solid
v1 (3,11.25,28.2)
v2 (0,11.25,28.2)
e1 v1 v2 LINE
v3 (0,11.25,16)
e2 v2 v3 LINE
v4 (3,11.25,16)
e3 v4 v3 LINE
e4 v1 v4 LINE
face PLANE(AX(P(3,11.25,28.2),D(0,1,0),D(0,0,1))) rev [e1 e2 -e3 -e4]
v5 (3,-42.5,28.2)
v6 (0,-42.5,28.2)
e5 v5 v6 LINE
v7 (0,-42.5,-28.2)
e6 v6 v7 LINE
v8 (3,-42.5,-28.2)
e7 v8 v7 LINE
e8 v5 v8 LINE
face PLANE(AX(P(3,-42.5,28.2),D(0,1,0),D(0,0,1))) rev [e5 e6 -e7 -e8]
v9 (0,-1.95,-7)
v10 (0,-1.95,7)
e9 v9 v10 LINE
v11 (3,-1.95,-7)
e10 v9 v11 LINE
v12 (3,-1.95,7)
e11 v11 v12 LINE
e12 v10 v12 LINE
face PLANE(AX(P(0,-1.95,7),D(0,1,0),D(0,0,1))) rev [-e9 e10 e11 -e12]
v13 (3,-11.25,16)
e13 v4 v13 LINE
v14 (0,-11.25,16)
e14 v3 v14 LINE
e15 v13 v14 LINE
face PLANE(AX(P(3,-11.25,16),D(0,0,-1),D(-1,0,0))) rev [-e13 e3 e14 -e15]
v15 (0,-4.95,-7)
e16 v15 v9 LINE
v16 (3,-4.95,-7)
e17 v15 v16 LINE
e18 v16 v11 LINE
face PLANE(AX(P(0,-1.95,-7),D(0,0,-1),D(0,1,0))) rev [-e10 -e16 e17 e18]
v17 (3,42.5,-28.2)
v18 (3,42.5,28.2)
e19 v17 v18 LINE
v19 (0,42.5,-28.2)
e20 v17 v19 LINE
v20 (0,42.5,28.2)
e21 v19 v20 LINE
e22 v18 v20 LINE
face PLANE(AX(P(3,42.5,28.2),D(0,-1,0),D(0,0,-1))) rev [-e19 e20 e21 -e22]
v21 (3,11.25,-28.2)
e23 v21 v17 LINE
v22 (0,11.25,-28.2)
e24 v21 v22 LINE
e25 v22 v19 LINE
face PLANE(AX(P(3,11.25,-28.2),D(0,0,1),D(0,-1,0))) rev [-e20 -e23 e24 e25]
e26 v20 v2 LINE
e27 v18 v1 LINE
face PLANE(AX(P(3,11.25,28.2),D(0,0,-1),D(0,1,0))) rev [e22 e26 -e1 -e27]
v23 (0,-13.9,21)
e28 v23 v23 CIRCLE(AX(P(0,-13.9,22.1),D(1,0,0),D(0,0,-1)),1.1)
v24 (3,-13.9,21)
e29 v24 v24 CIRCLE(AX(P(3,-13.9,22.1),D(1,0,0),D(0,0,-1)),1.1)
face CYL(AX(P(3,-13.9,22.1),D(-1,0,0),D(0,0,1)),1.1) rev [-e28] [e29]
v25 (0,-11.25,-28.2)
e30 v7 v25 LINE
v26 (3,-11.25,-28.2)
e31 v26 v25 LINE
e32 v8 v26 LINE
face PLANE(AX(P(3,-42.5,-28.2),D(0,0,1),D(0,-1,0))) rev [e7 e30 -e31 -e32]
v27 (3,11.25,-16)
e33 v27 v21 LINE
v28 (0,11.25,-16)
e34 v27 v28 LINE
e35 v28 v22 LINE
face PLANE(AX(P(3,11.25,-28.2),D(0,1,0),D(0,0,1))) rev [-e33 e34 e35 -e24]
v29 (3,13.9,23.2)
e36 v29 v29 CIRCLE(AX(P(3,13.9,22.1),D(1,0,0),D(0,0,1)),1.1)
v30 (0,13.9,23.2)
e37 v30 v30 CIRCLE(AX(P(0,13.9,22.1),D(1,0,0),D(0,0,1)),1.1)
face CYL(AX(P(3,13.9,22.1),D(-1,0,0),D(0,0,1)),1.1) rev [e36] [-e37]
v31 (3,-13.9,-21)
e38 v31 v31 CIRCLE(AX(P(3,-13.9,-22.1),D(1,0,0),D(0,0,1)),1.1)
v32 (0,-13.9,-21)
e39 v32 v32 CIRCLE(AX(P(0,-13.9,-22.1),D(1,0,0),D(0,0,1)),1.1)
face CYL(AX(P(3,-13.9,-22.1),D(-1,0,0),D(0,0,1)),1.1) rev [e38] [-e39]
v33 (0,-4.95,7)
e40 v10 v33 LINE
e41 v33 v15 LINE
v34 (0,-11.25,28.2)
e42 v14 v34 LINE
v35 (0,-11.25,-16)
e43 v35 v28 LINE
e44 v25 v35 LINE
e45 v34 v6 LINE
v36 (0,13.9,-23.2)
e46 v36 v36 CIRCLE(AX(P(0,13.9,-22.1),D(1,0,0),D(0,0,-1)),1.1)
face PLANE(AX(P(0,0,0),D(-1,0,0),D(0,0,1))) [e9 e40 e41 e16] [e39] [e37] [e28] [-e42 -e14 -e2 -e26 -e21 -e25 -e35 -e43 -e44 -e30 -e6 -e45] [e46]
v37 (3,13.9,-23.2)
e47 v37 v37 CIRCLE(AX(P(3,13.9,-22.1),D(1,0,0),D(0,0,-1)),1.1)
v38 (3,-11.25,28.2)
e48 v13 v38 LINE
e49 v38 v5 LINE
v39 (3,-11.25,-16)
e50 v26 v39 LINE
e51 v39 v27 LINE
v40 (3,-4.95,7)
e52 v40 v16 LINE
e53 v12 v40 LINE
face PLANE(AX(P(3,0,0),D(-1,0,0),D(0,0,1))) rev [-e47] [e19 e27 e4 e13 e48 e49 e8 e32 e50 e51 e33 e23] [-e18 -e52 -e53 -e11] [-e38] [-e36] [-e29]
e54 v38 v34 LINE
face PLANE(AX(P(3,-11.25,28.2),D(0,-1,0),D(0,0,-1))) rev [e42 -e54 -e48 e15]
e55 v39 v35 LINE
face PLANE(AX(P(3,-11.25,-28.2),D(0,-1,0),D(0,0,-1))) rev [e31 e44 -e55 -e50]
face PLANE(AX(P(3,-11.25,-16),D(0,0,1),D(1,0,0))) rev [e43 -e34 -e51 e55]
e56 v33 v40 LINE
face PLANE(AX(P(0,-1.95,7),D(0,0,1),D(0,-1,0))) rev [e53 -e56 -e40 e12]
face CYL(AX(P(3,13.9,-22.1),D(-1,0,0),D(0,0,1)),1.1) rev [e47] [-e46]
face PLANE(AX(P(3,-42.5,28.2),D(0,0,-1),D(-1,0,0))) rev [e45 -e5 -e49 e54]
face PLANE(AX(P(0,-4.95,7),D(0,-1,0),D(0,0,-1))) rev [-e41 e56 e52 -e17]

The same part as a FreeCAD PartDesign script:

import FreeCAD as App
import Part
import Sketcher
from FreeCAD import Vector
Q = App.Units.Quantity

doc = App.newDocument("Part")
body = doc.addObject("PartDesign::Body", "Body")

# Sketch on YZ plane
sketch1 = doc.addObject("Sketcher::SketchObject", "Sketch")
body.addObject(sketch1)
sketch1.AttachmentSupport = (doc.YZ_Plane, [""])
sketch1.MapMode = "FlatFace"
sketch1.addGeometry(Part.LineSegment(Vector(-42.5, 28.2, 0), Vector(-42.5, -28.2, 0)), False)
sketch1.addGeometry(Part.LineSegment(Vector(-42.5, -28.2, 0), Vector(-11.2, -28.2, 0)), False)
sketch1.addGeometry(Part.LineSegment(Vector(-11.2, -28.2, 0), Vector(-11.2, -16, 0)), False)
sketch1.addGeometry(Part.LineSegment(Vector(-11.2, -16, 0), Vector(11.2, -16, 0)), False)
sketch1.addGeometry(Part.LineSegment(Vector(11.2, -16, 0), Vector(11.2, -28.2, 0)), False)
sketch1.addGeometry(Part.LineSegment(Vector(11.2, -28.2, 0), Vector(42.5, -28.2, 0)), False)
sketch1.addGeometry(Part.LineSegment(Vector(42.5, -28.2, 0), Vector(42.5, 28.2, 0)), False)
sketch1.addGeometry(Part.LineSegment(Vector(42.5, 28.2, 0), Vector(11.2, 28.2, 0)), False)
sketch1.addGeometry(Part.LineSegment(Vector(11.2, 28.2, 0), Vector(11.2, 16, 0)), False)
sketch1.addGeometry(Part.LineSegment(Vector(11.2, 16, 0), Vector(-11.2, 16, 0)), False)
sketch1.addGeometry(Part.LineSegment(Vector(-11.2, 16, 0), Vector(-11.2, 28.2, 0)), False)
sketch1.addGeometry(Part.LineSegment(Vector(-11.2, 28.2, 0), Vector(-42.5, 28.2, 0)), False)
sketch1.addGeometry(Part.Circle(Vector(-13.9, 22.1, 0), Vector(0, 0, 1), 1.1), False)
sketch1.addGeometry(Part.Circle(Vector(-13.9, -22.1, 0), Vector(0, 0, 1), 1.1), False)
sketch1.addGeometry(Part.Circle(Vector(13.9, 22.1, 0), Vector(0, 0, 1), 1.1), False)
sketch1.addGeometry(Part.Circle(Vector(13.9, -22.1, 0), Vector(0, 0, 1), 1.1), False)
sketch1.addConstraint(Sketcher.Constraint("Coincident", 0, 2, 1, 1))
sketch1.addConstraint(Sketcher.Constraint("Coincident", 1, 2, 2, 1))
sketch1.addConstraint(Sketcher.Constraint("Coincident", 2, 2, 3, 1))
sketch1.addConstraint(Sketcher.Constraint("Coincident", 3, 2, 4, 1))
sketch1.addConstraint(Sketcher.Constraint("Coincident", 4, 2, 5, 1))
sketch1.addConstraint(Sketcher.Constraint("Coincident", 5, 2, 6, 1))
sketch1.addConstraint(Sketcher.Constraint("Coincident", 6, 2, 7, 1))
sketch1.addConstraint(Sketcher.Constraint("Coincident", 7, 2, 8, 1))
sketch1.addConstraint(Sketcher.Constraint("Coincident", 8, 2, 9, 1))
sketch1.addConstraint(Sketcher.Constraint("Coincident", 9, 2, 10, 1))
sketch1.addConstraint(Sketcher.Constraint("Coincident", 10, 2, 11, 1))
sketch1.addConstraint(Sketcher.Constraint("Coincident", 11, 2, 0, 1))
sketch1.addConstraint(Sketcher.Constraint("Vertical", 0))
sketch1.addConstraint(Sketcher.Constraint("Horizontal", 1))
sketch1.addConstraint(Sketcher.Constraint("Vertical", 2))
sketch1.addConstraint(Sketcher.Constraint("Horizontal", 3))
sketch1.addConstraint(Sketcher.Constraint("Vertical", 4))
sketch1.addConstraint(Sketcher.Constraint("Horizontal", 5))
sketch1.addConstraint(Sketcher.Constraint("Vertical", 6))
sketch1.addConstraint(Sketcher.Constraint("Horizontal", 7))
sketch1.addConstraint(Sketcher.Constraint("Vertical", 8))
sketch1.addConstraint(Sketcher.Constraint("Horizontal", 9))
sketch1.addConstraint(Sketcher.Constraint("Vertical", 10))
sketch1.addConstraint(Sketcher.Constraint("Horizontal", 11))
sketch1.addConstraint(Sketcher.Constraint("Equal", 12, 13))
sketch1.addConstraint(Sketcher.Constraint("Equal", 13, 14))
sketch1.addConstraint(Sketcher.Constraint("Equal", 14, 15))
sketch1.addConstraint(Sketcher.Constraint("Symmetric", 13, 3, 14, 3, -1, 1))
sketch1.addConstraint(Sketcher.Constraint("Symmetric", 12, 3, 15, 3, -1, 1))
sketch1.addConstraint(Sketcher.Constraint("Symmetric", 0, 2, 6, 2, -1, 1))
sketch1.addConstraint(Sketcher.Constraint("Symmetric", 2, 2, 8, 2, -1, 1))
sketch1.addConstraint(Sketcher.Constraint("Symmetric", 4, 2, 10, 2, -1, 1))
sketch1.addConstraint(Sketcher.Constraint("Symmetric", 12, 3, 14, 3, -2))
sketch1.addConstraint(Sketcher.Constraint("Symmetric", 1, 2, 4, 2, -2))
sketch1.addConstraint(Sketcher.Constraint("Diameter", 12, Q("2.2 mm")))
sketch1.addConstraint(Sketcher.Constraint("DistanceX", 3, 1, 3, 2, Q("22.5 mm")))
sketch1.addConstraint(Sketcher.Constraint("DistanceY", 0, 2, 0, 1, Q("56.4 mm")))
sketch1.addConstraint(Sketcher.Constraint("DistanceY", 2, 1, 2, 2, Q("12.2 mm")))
sketch1.addConstraint(Sketcher.Constraint("DistanceX", 1, 1, 1, 2, Q("31.25 mm")))
sketch1.addConstraint(Sketcher.Constraint("DistanceX", 12, 3, -1, 1, Q("13.9 mm")))
sketch1.addConstraint(Sketcher.Constraint("DistanceY", -1, 1, 12, 3, Q("22.1 mm")))
pad1 = doc.addObject("PartDesign::Pad", "Pad")
body.addObject(pad1)
pad1.Profile = sketch1
pad1.Length = 3

# Sketch on YZ plane
sketch2 = doc.addObject("Sketcher::SketchObject", "Sketch001")
body.addObject(sketch2)
sketch2.AttachmentSupport = (doc.YZ_Plane, [""])
sketch2.MapMode = "FlatFace"
sketch2.AttachmentOffset = App.Placement(Vector(0, 0, 3), App.Rotation())
sketch2.addGeometry(Part.LineSegment(Vector(-1.9, 7, 0), Vector(-5, 7, 0)), False)
sketch2.addGeometry(Part.LineSegment(Vector(-5, 7, 0), Vector(-5, -7, 0)), False)
sketch2.addGeometry(Part.LineSegment(Vector(-5, -7, 0), Vector(-1.9, -7, 0)), False)
sketch2.addGeometry(Part.LineSegment(Vector(-1.9, -7, 0), Vector(-1.9, 7, 0)), False)
sketch2.addConstraint(Sketcher.Constraint("Coincident", 0, 2, 1, 1))
sketch2.addConstraint(Sketcher.Constraint("Coincident", 1, 2, 2, 1))
sketch2.addConstraint(Sketcher.Constraint("Coincident", 2, 2, 3, 1))
sketch2.addConstraint(Sketcher.Constraint("Coincident", 3, 2, 0, 1))
sketch2.addConstraint(Sketcher.Constraint("Horizontal", 0))
sketch2.addConstraint(Sketcher.Constraint("Vertical", 1))
sketch2.addConstraint(Sketcher.Constraint("Horizontal", 2))
sketch2.addConstraint(Sketcher.Constraint("Vertical", 3))
sketch2.addConstraint(Sketcher.Constraint("DistanceX", 0, 2, 0, 1, Q("3 mm")))
sketch2.addConstraint(Sketcher.Constraint("DistanceY", 1, 2, 1, 1, Q("14 mm")))
sketch2.addConstraint(Sketcher.Constraint("DistanceY", -1, 1, 0, 2, Q("7 mm")))
sketch2.addConstraint(Sketcher.Constraint("DistanceX", 0, 2, -1, 1, Q("4.95 mm")))
pocket1 = doc.addObject("PartDesign::Pocket", "Pocket")
body.addObject(pocket1)
pocket1.Profile = sketch2
pocket1.Length = 3

doc.recompute()
